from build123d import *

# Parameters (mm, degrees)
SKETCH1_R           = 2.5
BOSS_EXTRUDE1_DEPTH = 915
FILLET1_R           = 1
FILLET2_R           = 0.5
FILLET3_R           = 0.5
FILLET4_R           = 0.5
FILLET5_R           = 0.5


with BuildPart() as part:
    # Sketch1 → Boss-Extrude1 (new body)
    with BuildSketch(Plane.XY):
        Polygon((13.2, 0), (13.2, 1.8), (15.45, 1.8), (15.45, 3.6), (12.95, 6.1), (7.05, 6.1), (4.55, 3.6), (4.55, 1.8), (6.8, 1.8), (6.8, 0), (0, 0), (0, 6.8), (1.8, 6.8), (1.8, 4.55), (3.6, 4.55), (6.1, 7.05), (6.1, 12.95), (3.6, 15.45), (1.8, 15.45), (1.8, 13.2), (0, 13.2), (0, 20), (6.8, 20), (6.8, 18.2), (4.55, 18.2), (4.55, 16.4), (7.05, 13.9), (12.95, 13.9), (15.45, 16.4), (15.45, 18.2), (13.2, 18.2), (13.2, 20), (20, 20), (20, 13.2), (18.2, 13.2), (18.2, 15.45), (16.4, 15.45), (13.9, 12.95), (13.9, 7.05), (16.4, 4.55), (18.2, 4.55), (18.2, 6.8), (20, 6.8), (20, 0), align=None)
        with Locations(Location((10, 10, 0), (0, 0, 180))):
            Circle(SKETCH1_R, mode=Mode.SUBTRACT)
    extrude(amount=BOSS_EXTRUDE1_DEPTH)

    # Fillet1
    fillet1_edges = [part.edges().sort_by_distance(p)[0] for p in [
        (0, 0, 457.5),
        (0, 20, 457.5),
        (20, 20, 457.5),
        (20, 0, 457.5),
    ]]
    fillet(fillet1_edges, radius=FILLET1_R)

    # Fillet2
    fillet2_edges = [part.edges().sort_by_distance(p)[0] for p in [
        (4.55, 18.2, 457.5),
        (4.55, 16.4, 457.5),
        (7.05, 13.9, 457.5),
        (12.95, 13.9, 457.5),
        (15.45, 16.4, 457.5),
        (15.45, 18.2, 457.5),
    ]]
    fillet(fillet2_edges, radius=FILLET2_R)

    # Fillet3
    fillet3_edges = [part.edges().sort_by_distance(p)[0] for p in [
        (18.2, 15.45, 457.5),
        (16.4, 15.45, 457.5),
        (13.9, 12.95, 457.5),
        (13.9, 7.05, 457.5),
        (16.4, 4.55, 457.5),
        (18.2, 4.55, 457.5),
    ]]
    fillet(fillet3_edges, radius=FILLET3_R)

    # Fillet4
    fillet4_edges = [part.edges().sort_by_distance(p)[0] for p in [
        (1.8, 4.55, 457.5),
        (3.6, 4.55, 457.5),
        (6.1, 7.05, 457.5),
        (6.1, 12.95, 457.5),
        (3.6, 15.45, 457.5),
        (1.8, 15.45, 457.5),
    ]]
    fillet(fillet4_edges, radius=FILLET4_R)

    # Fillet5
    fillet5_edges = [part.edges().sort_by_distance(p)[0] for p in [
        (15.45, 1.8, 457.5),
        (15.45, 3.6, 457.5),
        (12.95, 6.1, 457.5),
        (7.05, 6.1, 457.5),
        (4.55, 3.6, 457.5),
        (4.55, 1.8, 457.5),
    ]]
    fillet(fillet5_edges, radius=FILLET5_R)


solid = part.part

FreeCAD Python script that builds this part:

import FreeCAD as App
import Part
import Sketcher

V = App.Vector
Q = App.Units.Quantity


def edges_at(feature, points):
    """Names of the edges that pass closest to the given points."""
    edges = feature.Shape.Edges
    near = lambda p: min(range(len(edges)), key=lambda i: edges[i].distToShape(Part.Vertex(*p))[0])
    return sorted({f"Edge{near(p) + 1}" for p in points})

doc = App.newDocument("Part")
body = doc.addObject("PartDesign::Body", "Body")

sketch1 = body.newObject("Sketcher::SketchObject", "Sketch")
sketch1.AttachmentSupport = (doc.getObject("XY_Plane"), [""])
sketch1.MapMode = "FlatFace"
sketch1.addGeometry([
    Part.LineSegment(V(13.2, 1.8, 0), V(13.2, 0, 0)),
    Part.LineSegment(V(13.2, 0, 0), V(20, 0, 0)),
    Part.LineSegment(V(20, 0, 0), V(20, 6.8, 0)),
    Part.LineSegment(V(20, 6.8, 0), V(18.2, 6.8, 0)),
    Part.LineSegment(V(18.2, 6.8, 0), V(18.2, 4.5, 0)),
    Part.LineSegment(V(18.2, 4.5, 0), V(16.4, 4.5, 0)),
    Part.LineSegment(V(16.4, 4.5, 0), V(13.9, 7, 0)),
    Part.LineSegment(V(13.9, 7, 0), V(13.9, 12.9, 0)),
    Part.LineSegment(V(13.9, 12.9, 0), V(16.4, 15.4, 0)),
    Part.LineSegment(V(16.4, 15.4, 0), V(18.2, 15.4, 0)),
    Part.LineSegment(V(18.2, 15.4, 0), V(18.2, 13.2, 0)),
    Part.LineSegment(V(18.2, 13.2, 0), V(20, 13.2, 0)),
    Part.LineSegment(V(20, 13.2, 0), V(20, 20, 0)),
    Part.LineSegment(V(20, 20, 0), V(13.2, 20, 0)),
    Part.LineSegment(V(13.2, 20, 0), V(13.2, 18.2, 0)),
    Part.LineSegment(V(13.2, 18.2, 0), V(15.4, 18.2, 0)),
    Part.LineSegment(V(15.4, 18.2, 0), V(15.4, 16.4, 0)),
    Part.LineSegment(V(15.4, 16.4, 0), V(12.9, 13.9, 0)),
    Part.LineSegment(V(12.9, 13.9, 0), V(7, 13.9, 0)),
    Part.LineSegment(V(7, 13.9, 0), V(4.5, 16.4, 0)),
    Part.LineSegment(V(4.5, 16.4, 0), V(4.5, 18.2, 0)),
    Part.LineSegment(V(4.5, 18.2, 0), V(6.8, 18.2, 0)),
    Part.LineSegment(V(6.8, 18.2, 0), V(6.8, 20, 0)),
    Part.LineSegment(V(6.8, 20, 0), V(0, 20, 0)),
    Part.LineSegment(V(0, 20, 0), V(0, 13.2, 0)),
    Part.LineSegment(V(0, 13.2, 0), V(1.8, 13.2, 0)),
    Part.LineSegment(V(1.8, 13.2, 0), V(1.8, 15.4, 0)),
    Part.LineSegment(V(1.8, 15.4, 0), V(3.6, 15.4, 0)),
    Part.LineSegment(V(3.6, 15.4, 0), V(6.1, 12.9, 0)),
    Part.LineSegment(V(6.1, 12.9, 0), V(6.1, 7, 0)),
    Part.LineSegment(V(6.1, 7, 0), V(3.6, 4.5, 0)),
    Part.LineSegment(V(3.6, 4.5, 0), V(1.8, 4.5, 0)),
    Part.LineSegment(V(1.8, 4.5, 0), V(1.8, 6.8, 0)),
    Part.LineSegment(V(1.8, 6.8, 0), V(0, 6.8, 0)),
    Part.LineSegment(V(0, 6.8, 0), V(0, 0, 0)),
    Part.LineSegment(V(0, 0, 0), V(6.8, 0, 0)),
    Part.LineSegment(V(6.8, 0, 0), V(6.8, 1.8, 0)),
    Part.LineSegment(V(6.8, 1.8, 0), V(4.5, 1.8, 0)),
    Part.LineSegment(V(4.5, 1.8, 0), V(4.5, 3.6, 0)),
    Part.LineSegment(V(4.5, 3.6, 0), V(7, 6.1, 0)),
    Part.LineSegment(V(7, 6.1, 0), V(12.9, 6.1, 0)),
    Part.LineSegment(V(12.9, 6.1, 0), V(15.4, 3.6, 0)),
    Part.LineSegment(V(15.4, 3.6, 0), V(15.4, 1.8, 0)),
    Part.LineSegment(V(15.4, 1.8, 0), V(13.2, 1.8, 0)),
    Part.Circle(V(10, 10, 0), V(0, 0, 1), 2.5),
], False)
sketch1.addConstraint([
    Sketcher.Constraint("Coincident", 0, 2, 1, 1),
    Sketcher.Constraint("Coincident", 1, 2, 2, 1),
    Sketcher.Constraint("Coincident", 2, 2, 3, 1),
    Sketcher.Constraint("Coincident", 3, 2, 4, 1),
    Sketcher.Constraint("Coincident", 4, 2, 5, 1),
    Sketcher.Constraint("Coincident", 5, 2, 6, 1),
    Sketcher.Constraint("Coincident", 6, 2, 7, 1),
    Sketcher.Constraint("Coincident", 7, 2, 8, 1),
    Sketcher.Constraint("Coincident", 8, 2, 9, 1),
    Sketcher.Constraint("Coincident", 9, 2, 10, 1),
    Sketcher.Constraint("Coincident", 10, 2, 11, 1),
    Sketcher.Constraint("Coincident", 11, 2, 12, 1),
    Sketcher.Constraint("Coincident", 12, 2, 13, 1),
    Sketcher.Constraint("Coincident", 13, 2, 14, 1),
    Sketcher.Constraint("Coincident", 14, 2, 15, 1),
    Sketcher.Constraint("Coincident", 15, 2, 16, 1),
    Sketcher.Constraint("Coincident", 16, 2, 17, 1),
    Sketcher.Constraint("Coincident", 17, 2, 18, 1),
    Sketcher.Constraint("Coincident", 18, 2, 19, 1),
    Sketcher.Constraint("Coincident", 19, 2, 20, 1),
    Sketcher.Constraint("Coincident", 20, 2, 21, 1),
    Sketcher.Constraint("Coincident", 21, 2, 22, 1),
    Sketcher.Constraint("Coincident", 22, 2, 23, 1),
    Sketcher.Constraint("Coincident", 23, 2, 24, 1),
    Sketcher.Constraint("Coincident", 24, 2, 25, 1),
    Sketcher.Constraint("Coincident", 25, 2, 26, 1),
    Sketcher.Constraint("Coincident", 26, 2, 27, 1),
    Sketcher.Constraint("Coincident", 27, 2, 28, 1),
    Sketcher.Constraint("Coincident", 28, 2, 29, 1),
    Sketcher.Constraint("Coincident", 29, 2, 30, 1),
    Sketcher.Constraint("Coincident", 30, 2, 31, 1),
    Sketcher.Constraint("Coincident", 31, 2, 32, 1),
    Sketcher.Constraint("Coincident", 32, 2, 33, 1),
    Sketcher.Constraint("Coincident", 33, 2, 34, 1),
    Sketcher.Constraint("Coincident", 34, 2, 35, 1),
    Sketcher.Constraint("Coincident", 35, 2, 36, 1),
    Sketcher.Constraint("Coincident", 36, 2, 37, 1),
    Sketcher.Constraint("Coincident", 37, 2, 38, 1),
    Sketcher.Constraint("Coincident", 38, 2, 39, 1),
    Sketcher.Constraint("Coincident", 39, 2, 40, 1),
    Sketcher.Constraint("Coincident", 40, 2, 41, 1),
    Sketcher.Constraint("Coincident", 41, 2, 42, 1),
    Sketcher.Constraint("Coincident", 42, 2, 43, 1),
    Sketcher.Constraint("Coincident", 43, 2, 0, 1),
    Sketcher.Constraint("Vertical", 0),
    Sketcher.Constraint("Horizontal", 1),
    Sketcher.Constraint("Vertical", 2),
    Sketcher.Constraint("Horizontal", 3),
    Sketcher.Constraint("Vertical", 4),
    Sketcher.Constraint("Horizontal", 5),
    Sketcher.Constraint("Vertical", 7),
    Sketcher.Constraint("Horizontal", 9),
    Sketcher.Constraint("Vertical", 10),
    Sketcher.Constraint("Horizontal", 11),
    Sketcher.Constraint("Vertical", 12),
    Sketcher.Constraint("Horizontal", 13),
    Sketcher.Constraint("Vertical", 14),
    Sketcher.Constraint("Horizontal", 15),
    Sketcher.Constraint("Vertical", 16),
    Sketcher.Constraint("Horizontal", 18),
    Sketcher.Constraint("Vertical", 20),
    Sketcher.Constraint("Horizontal", 21),
    Sketcher.Constraint("Vertical", 22),
    Sketcher.Constraint("Horizontal", 23),
    Sketcher.Constraint("Vertical", 24),
    Sketcher.Constraint("Horizontal", 25),
    Sketcher.Constraint("Vertical", 26),
    Sketcher.Constraint("Horizontal", 27),
    Sketcher.Constraint("Vertical", 29),
    Sketcher.Constraint("Horizontal", 31),
    Sketcher.Constraint("Vertical", 32),
    Sketcher.Constraint("Horizontal", 33),
    Sketcher.Constraint("Vertical", 34),
    Sketcher.Constraint("Horizontal", 35),
    Sketcher.Constraint("Vertical", 36),
    Sketcher.Constraint("Horizontal", 37),
    Sketcher.Constraint("Vertical", 38),
    Sketcher.Constraint("Horizontal", 40),
    Sketcher.Constraint("Vertical", 42),
    Sketcher.Constraint("Horizontal", 43),
    Sketcher.Constraint("Coincident", 34, 2, -1, 1),
    Sketcher.Constraint("PointOnObject", 0, 2, -1),
    Sketcher.Constraint("PointOnObject", 23, 2, -2),
    Sketcher.Constraint("Perpendicular", 6, 8),
    Sketcher.Constraint("Parallel", 8, 17),
    Sketcher.Constraint("Perpendicular", 17, 19),
    Sketcher.Constraint("Parallel", 19, 28),
    Sketcher.Constraint("Perpendicular", 28, 30),
    Sketcher.Constraint("Parallel", 30, 39),
    Sketcher.Constraint("Perpendicular", 39, 41),
    Sketcher.Constraint("Horizontal", 16, 2, 19, 2),
    Sketcher.Constraint("Horizontal", 15, 2, 20, 2),
    Sketcher.Constraint("Horizontal", 13, 2, 22, 2),
    Sketcher.Constraint("Horizontal", 11, 2, 24, 2),
    Sketcher.Constraint("Horizontal", 9, 2, 26, 2),
    Sketcher.Constraint("Horizontal", 7, 2, 28, 2),
    Sketcher.Constraint("Horizontal", 6, 2, 29, 2),
    Sketcher.Constraint("Horizontal", 5, 2, 30, 2),
    Sketcher.Constraint("Horizontal", 3, 2, 32, 2),
    Sketcher.Constraint("Horizontal", 38, 2, 41, 2),
    Sketcher.Constraint("Horizontal", 37, 2, 42, 2),
    Sketcher.Constraint("Vertical", 5, 2, 8, 2),
    Sketcher.Constraint("Vertical", 4, 2, 9, 2),
    Sketcher.Constraint("Vertical", 2, 2, 11, 2),
    Sketcher.Constraint("Vertical", 0, 2, 13, 2),
    Sketcher.Constraint("Vertical", 27, 2, 30, 2),
    Sketcher.Constraint("Vertical", 26, 2, 31, 2),
    Sketcher.Constraint("Vertical", 22, 2, 35, 2),
    Sketcher.Constraint("Vertical", 20, 2, 37, 2),
    Sketcher.Constraint("Vertical", 18, 2, 39, 2),
    Sketcher.Constraint("Vertical", 17, 2, 40, 2),
    Sketcher.Constraint("Equal", 3, 5),
    Sketcher.Constraint("Equal", 15, 21),
    Sketcher.Constraint("Equal", 13, 23),
    Sketcher.Constraint("Equal", 11, 25),
    Sketcher.Constraint("Equal", 25, 27),
    Sketcher.Constraint("Equal", 33, 0),
    Sketcher.Constraint("Equal", 35, 2),
    Sketcher.Constraint("Equal", 43, 4),
    Sketcher.Constraint("Equal", 40, 7),
    Sketcher.Constraint("Equal", 4, 10),
    Sketcher.Constraint("Equal", 2, 12),
    Sketcher.Constraint("Equal", 0, 14),
    Sketcher.Constraint("Equal", 14, 16),
    Sketcher.Constraint("Equal", 36, 38),
    Sketcher.Constraint("Equal", 8, 17),
    Sketcher.Constraint("Diameter", 44, Q("5 mm")),
    Sketcher.Constraint("DistanceX", 1, 1, 1, 2, Q("6.8 mm")),
    Sketcher.Constraint("DistanceX", 3, 2, 3, 1, Q("1.8 mm")),
    Sketcher.Constraint("DistanceX", 18, 2, 18, 1, Q("5.9 mm")),
    Sketcher.Constraint("DistanceX", -1, 1, 44, 3, Q("10 mm")),
    Sketcher.Constraint("DistanceY", -1, 1, 44, 3, Q("10 mm")),
    Sketcher.Constraint("DistanceX", -1, 1, 1, 2, Q("20 mm")),
    Sketcher.Constraint("DistanceX", 15, 1, 15, 2, Q("2.25 mm")),
])
pad1 = body.newObject("PartDesign::Pad", "Pad")
pad1.Profile = sketch1
pad1.Length = 915
doc.recompute()

fillet = body.newObject("PartDesign::Fillet", "Fillet")
fillet.Base = (pad1, edges_at(pad1, [
    (0, 0, 457.5),
    (0, 20, 457.5),
    (20, 20, 457.5),
    (20, 0, 457.5),
]))
fillet.Radius = 1
doc.recompute()

fillet2 = body.newObject("PartDesign::Fillet", "Fillet001")
fillet2.Base = (fillet, edges_at(fillet, [
    (4.55, 18.2, 457.5),
    (4.55, 16.4, 457.5),
    (7.05, 13.9, 457.5),
    (12.95, 13.9, 457.5),
    (15.45, 16.4, 457.5),
    (15.45, 18.2, 457.5),
]))
fillet2.Radius = 0.5
doc.recompute()

fillet3 = body.newObject("PartDesign::Fillet", "Fillet002")
fillet3.Base = (fillet2, edges_at(fillet2, [
    (18.2, 15.45, 457.5),
    (16.4, 15.45, 457.5),
    (13.9, 12.95, 457.5),
    (13.9, 7.05, 457.5),
    (16.4, 4.55, 457.5),
    (18.2, 4.55, 457.5),
]))
fillet3.Radius = 0.5
doc.recompute()

fillet4 = body.newObject("PartDesign::Fillet", "Fillet003")
fillet4.Base = (fillet3, edges_at(fillet3, [
    (1.8, 4.55, 457.5),
    (3.6, 4.55, 457.5),
    (6.1, 7.05, 457.5),
    (6.1, 12.95, 457.5),
    (3.6, 15.45, 457.5),
    (1.8, 15.45, 457.5),
]))
fillet4.Radius = 0.5
doc.recompute()

fillet5 = body.newObject("PartDesign::Fillet", "Fillet004")
fillet5.Base = (fillet4, edges_at(fillet4, [
    (15.45, 1.8, 457.5),
    (15.45, 3.6, 457.5),
    (12.95, 6.1, 457.5),
    (7.05, 6.1, 457.5),
    (4.55, 3.6, 457.5),
    (4.55, 1.8, 457.5),
]))
fillet5.Radius = 0.5

doc.recompute()
